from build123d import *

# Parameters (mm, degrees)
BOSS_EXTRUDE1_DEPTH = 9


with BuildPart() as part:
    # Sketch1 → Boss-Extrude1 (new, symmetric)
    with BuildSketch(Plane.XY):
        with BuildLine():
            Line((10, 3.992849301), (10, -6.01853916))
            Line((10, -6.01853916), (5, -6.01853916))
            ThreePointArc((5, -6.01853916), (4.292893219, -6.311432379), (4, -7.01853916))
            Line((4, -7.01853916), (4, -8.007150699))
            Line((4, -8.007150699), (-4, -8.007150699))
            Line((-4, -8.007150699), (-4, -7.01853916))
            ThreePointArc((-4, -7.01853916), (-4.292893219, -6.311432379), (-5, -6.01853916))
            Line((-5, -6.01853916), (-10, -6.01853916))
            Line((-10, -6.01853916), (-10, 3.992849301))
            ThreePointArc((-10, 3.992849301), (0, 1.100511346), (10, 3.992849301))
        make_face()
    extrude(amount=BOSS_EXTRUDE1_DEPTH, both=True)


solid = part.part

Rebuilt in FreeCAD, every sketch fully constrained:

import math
import FreeCAD as App
import Part
import Sketcher

doc = App.newDocument("Part")
body = doc.addObject("PartDesign::Body", "Body")

sketch1 = doc.addObject("Sketcher::SketchObject", "Sketch")
body.addObject(sketch1)
sketch1.AttachmentSupport = (doc.XY_Plane, [""])
sketch1.MapMode = "FlatFace"
sketch1.addGeometry([
    Part.LineSegment(App.Vector(10, -6, 0), App.Vector(10, 4, 0)),
    Part.ArcOfCircle(Part.Circle(App.Vector(0, 19.8, 0), App.Vector(0, 0, 1), 18.7), math.radians(-122), math.radians(-58)),
    Part.LineSegment(App.Vector(-10, 4, 0), App.Vector(-10, -6, 0)),
    Part.LineSegment(App.Vector(-10, -6, 0), App.Vector(-5, -6, 0)),
    Part.ArcOfCircle(Part.Circle(App.Vector(-5, -7, 0), App.Vector(0, 0, 1), 1), math.radians(0), math.radians(90)),
    Part.LineSegment(App.Vector(-4, -7, 0), App.Vector(-4, -8, 0)),
    Part.LineSegment(App.Vector(-4, -8, 0), App.Vector(4, -8, 0)),
    Part.LineSegment(App.Vector(4, -8, 0), App.Vector(4, -7, 0)),
    Part.ArcOfCircle(Part.Circle(App.Vector(5, -7, 0), App.Vector(0, 0, 1), 1), math.radians(90), math.radians(180)),
    Part.LineSegment(App.Vector(5, -6, 0), App.Vector(10, -6, 0)),
], False)
sketch1.addConstraint([
    Sketcher.Constraint("Coincident", 0, 2, 1, 2),
    Sketcher.Constraint("Coincident", 1, 1, 2, 1),
    Sketcher.Constraint("Coincident", 2, 2, 3, 1),
    Sketcher.Constraint("Tangent", 3, 2, 4, 2),
    Sketcher.Constraint("Tangent", 4, 1, 5, 1),
    Sketcher.Constraint("Coincident", 5, 2, 6, 1),
    Sketcher.Constraint("Coincident", 6, 2, 7, 1),
    Sketcher.Constraint("Tangent", 7, 2, 8, 2),
    Sketcher.Constraint("Tangent", 8, 1, 9, 1),
    Sketcher.Constraint("Coincident", 9, 2, 0, 1),
    Sketcher.Constraint("Vertical", 0),
    Sketcher.Constraint("Vertical", 2),
    Sketcher.Constraint("Horizontal", 3),
    Sketcher.Constraint("Vertical", 5),
    Sketcher.Constraint("Horizontal", 6),
    Sketcher.Constraint("Vertical", 7),
    Sketcher.Constraint("Horizontal", 9),
    Sketcher.Constraint("Equal", 4, 8),
    Sketcher.Constraint("Symmetric", 4, 3, 8, 3, -2),
    Sketcher.Constraint("Symmetric", 0, 2, 1, 1, -2),
    Sketcher.Constraint("Radius", 4, 1.0),
    Sketcher.Constraint("DistanceX", 3, 1, 3, 2, 5.0),
    Sketcher.Constraint("DistanceX", 6, 1, 6, 2, 8.0),
    Sketcher.Constraint("Radius", 1, 18.733222),
    Sketcher.Constraint("DistanceY", 0, 1, 0, 2, 10.011388),
    Sketcher.Constraint("DistanceY", 5, 2, 5, 1, 0.988612),
    Sketcher.Constraint("DistanceY", 4, 3, -1, 1, 7.018539),
])
pad1 = doc.addObject("PartDesign::Pad", "Pad")
body.addObject(pad1)
pad1.Profile = sketch1
pad1.Length = 18
pad1.Midplane = True

doc.recompute()
